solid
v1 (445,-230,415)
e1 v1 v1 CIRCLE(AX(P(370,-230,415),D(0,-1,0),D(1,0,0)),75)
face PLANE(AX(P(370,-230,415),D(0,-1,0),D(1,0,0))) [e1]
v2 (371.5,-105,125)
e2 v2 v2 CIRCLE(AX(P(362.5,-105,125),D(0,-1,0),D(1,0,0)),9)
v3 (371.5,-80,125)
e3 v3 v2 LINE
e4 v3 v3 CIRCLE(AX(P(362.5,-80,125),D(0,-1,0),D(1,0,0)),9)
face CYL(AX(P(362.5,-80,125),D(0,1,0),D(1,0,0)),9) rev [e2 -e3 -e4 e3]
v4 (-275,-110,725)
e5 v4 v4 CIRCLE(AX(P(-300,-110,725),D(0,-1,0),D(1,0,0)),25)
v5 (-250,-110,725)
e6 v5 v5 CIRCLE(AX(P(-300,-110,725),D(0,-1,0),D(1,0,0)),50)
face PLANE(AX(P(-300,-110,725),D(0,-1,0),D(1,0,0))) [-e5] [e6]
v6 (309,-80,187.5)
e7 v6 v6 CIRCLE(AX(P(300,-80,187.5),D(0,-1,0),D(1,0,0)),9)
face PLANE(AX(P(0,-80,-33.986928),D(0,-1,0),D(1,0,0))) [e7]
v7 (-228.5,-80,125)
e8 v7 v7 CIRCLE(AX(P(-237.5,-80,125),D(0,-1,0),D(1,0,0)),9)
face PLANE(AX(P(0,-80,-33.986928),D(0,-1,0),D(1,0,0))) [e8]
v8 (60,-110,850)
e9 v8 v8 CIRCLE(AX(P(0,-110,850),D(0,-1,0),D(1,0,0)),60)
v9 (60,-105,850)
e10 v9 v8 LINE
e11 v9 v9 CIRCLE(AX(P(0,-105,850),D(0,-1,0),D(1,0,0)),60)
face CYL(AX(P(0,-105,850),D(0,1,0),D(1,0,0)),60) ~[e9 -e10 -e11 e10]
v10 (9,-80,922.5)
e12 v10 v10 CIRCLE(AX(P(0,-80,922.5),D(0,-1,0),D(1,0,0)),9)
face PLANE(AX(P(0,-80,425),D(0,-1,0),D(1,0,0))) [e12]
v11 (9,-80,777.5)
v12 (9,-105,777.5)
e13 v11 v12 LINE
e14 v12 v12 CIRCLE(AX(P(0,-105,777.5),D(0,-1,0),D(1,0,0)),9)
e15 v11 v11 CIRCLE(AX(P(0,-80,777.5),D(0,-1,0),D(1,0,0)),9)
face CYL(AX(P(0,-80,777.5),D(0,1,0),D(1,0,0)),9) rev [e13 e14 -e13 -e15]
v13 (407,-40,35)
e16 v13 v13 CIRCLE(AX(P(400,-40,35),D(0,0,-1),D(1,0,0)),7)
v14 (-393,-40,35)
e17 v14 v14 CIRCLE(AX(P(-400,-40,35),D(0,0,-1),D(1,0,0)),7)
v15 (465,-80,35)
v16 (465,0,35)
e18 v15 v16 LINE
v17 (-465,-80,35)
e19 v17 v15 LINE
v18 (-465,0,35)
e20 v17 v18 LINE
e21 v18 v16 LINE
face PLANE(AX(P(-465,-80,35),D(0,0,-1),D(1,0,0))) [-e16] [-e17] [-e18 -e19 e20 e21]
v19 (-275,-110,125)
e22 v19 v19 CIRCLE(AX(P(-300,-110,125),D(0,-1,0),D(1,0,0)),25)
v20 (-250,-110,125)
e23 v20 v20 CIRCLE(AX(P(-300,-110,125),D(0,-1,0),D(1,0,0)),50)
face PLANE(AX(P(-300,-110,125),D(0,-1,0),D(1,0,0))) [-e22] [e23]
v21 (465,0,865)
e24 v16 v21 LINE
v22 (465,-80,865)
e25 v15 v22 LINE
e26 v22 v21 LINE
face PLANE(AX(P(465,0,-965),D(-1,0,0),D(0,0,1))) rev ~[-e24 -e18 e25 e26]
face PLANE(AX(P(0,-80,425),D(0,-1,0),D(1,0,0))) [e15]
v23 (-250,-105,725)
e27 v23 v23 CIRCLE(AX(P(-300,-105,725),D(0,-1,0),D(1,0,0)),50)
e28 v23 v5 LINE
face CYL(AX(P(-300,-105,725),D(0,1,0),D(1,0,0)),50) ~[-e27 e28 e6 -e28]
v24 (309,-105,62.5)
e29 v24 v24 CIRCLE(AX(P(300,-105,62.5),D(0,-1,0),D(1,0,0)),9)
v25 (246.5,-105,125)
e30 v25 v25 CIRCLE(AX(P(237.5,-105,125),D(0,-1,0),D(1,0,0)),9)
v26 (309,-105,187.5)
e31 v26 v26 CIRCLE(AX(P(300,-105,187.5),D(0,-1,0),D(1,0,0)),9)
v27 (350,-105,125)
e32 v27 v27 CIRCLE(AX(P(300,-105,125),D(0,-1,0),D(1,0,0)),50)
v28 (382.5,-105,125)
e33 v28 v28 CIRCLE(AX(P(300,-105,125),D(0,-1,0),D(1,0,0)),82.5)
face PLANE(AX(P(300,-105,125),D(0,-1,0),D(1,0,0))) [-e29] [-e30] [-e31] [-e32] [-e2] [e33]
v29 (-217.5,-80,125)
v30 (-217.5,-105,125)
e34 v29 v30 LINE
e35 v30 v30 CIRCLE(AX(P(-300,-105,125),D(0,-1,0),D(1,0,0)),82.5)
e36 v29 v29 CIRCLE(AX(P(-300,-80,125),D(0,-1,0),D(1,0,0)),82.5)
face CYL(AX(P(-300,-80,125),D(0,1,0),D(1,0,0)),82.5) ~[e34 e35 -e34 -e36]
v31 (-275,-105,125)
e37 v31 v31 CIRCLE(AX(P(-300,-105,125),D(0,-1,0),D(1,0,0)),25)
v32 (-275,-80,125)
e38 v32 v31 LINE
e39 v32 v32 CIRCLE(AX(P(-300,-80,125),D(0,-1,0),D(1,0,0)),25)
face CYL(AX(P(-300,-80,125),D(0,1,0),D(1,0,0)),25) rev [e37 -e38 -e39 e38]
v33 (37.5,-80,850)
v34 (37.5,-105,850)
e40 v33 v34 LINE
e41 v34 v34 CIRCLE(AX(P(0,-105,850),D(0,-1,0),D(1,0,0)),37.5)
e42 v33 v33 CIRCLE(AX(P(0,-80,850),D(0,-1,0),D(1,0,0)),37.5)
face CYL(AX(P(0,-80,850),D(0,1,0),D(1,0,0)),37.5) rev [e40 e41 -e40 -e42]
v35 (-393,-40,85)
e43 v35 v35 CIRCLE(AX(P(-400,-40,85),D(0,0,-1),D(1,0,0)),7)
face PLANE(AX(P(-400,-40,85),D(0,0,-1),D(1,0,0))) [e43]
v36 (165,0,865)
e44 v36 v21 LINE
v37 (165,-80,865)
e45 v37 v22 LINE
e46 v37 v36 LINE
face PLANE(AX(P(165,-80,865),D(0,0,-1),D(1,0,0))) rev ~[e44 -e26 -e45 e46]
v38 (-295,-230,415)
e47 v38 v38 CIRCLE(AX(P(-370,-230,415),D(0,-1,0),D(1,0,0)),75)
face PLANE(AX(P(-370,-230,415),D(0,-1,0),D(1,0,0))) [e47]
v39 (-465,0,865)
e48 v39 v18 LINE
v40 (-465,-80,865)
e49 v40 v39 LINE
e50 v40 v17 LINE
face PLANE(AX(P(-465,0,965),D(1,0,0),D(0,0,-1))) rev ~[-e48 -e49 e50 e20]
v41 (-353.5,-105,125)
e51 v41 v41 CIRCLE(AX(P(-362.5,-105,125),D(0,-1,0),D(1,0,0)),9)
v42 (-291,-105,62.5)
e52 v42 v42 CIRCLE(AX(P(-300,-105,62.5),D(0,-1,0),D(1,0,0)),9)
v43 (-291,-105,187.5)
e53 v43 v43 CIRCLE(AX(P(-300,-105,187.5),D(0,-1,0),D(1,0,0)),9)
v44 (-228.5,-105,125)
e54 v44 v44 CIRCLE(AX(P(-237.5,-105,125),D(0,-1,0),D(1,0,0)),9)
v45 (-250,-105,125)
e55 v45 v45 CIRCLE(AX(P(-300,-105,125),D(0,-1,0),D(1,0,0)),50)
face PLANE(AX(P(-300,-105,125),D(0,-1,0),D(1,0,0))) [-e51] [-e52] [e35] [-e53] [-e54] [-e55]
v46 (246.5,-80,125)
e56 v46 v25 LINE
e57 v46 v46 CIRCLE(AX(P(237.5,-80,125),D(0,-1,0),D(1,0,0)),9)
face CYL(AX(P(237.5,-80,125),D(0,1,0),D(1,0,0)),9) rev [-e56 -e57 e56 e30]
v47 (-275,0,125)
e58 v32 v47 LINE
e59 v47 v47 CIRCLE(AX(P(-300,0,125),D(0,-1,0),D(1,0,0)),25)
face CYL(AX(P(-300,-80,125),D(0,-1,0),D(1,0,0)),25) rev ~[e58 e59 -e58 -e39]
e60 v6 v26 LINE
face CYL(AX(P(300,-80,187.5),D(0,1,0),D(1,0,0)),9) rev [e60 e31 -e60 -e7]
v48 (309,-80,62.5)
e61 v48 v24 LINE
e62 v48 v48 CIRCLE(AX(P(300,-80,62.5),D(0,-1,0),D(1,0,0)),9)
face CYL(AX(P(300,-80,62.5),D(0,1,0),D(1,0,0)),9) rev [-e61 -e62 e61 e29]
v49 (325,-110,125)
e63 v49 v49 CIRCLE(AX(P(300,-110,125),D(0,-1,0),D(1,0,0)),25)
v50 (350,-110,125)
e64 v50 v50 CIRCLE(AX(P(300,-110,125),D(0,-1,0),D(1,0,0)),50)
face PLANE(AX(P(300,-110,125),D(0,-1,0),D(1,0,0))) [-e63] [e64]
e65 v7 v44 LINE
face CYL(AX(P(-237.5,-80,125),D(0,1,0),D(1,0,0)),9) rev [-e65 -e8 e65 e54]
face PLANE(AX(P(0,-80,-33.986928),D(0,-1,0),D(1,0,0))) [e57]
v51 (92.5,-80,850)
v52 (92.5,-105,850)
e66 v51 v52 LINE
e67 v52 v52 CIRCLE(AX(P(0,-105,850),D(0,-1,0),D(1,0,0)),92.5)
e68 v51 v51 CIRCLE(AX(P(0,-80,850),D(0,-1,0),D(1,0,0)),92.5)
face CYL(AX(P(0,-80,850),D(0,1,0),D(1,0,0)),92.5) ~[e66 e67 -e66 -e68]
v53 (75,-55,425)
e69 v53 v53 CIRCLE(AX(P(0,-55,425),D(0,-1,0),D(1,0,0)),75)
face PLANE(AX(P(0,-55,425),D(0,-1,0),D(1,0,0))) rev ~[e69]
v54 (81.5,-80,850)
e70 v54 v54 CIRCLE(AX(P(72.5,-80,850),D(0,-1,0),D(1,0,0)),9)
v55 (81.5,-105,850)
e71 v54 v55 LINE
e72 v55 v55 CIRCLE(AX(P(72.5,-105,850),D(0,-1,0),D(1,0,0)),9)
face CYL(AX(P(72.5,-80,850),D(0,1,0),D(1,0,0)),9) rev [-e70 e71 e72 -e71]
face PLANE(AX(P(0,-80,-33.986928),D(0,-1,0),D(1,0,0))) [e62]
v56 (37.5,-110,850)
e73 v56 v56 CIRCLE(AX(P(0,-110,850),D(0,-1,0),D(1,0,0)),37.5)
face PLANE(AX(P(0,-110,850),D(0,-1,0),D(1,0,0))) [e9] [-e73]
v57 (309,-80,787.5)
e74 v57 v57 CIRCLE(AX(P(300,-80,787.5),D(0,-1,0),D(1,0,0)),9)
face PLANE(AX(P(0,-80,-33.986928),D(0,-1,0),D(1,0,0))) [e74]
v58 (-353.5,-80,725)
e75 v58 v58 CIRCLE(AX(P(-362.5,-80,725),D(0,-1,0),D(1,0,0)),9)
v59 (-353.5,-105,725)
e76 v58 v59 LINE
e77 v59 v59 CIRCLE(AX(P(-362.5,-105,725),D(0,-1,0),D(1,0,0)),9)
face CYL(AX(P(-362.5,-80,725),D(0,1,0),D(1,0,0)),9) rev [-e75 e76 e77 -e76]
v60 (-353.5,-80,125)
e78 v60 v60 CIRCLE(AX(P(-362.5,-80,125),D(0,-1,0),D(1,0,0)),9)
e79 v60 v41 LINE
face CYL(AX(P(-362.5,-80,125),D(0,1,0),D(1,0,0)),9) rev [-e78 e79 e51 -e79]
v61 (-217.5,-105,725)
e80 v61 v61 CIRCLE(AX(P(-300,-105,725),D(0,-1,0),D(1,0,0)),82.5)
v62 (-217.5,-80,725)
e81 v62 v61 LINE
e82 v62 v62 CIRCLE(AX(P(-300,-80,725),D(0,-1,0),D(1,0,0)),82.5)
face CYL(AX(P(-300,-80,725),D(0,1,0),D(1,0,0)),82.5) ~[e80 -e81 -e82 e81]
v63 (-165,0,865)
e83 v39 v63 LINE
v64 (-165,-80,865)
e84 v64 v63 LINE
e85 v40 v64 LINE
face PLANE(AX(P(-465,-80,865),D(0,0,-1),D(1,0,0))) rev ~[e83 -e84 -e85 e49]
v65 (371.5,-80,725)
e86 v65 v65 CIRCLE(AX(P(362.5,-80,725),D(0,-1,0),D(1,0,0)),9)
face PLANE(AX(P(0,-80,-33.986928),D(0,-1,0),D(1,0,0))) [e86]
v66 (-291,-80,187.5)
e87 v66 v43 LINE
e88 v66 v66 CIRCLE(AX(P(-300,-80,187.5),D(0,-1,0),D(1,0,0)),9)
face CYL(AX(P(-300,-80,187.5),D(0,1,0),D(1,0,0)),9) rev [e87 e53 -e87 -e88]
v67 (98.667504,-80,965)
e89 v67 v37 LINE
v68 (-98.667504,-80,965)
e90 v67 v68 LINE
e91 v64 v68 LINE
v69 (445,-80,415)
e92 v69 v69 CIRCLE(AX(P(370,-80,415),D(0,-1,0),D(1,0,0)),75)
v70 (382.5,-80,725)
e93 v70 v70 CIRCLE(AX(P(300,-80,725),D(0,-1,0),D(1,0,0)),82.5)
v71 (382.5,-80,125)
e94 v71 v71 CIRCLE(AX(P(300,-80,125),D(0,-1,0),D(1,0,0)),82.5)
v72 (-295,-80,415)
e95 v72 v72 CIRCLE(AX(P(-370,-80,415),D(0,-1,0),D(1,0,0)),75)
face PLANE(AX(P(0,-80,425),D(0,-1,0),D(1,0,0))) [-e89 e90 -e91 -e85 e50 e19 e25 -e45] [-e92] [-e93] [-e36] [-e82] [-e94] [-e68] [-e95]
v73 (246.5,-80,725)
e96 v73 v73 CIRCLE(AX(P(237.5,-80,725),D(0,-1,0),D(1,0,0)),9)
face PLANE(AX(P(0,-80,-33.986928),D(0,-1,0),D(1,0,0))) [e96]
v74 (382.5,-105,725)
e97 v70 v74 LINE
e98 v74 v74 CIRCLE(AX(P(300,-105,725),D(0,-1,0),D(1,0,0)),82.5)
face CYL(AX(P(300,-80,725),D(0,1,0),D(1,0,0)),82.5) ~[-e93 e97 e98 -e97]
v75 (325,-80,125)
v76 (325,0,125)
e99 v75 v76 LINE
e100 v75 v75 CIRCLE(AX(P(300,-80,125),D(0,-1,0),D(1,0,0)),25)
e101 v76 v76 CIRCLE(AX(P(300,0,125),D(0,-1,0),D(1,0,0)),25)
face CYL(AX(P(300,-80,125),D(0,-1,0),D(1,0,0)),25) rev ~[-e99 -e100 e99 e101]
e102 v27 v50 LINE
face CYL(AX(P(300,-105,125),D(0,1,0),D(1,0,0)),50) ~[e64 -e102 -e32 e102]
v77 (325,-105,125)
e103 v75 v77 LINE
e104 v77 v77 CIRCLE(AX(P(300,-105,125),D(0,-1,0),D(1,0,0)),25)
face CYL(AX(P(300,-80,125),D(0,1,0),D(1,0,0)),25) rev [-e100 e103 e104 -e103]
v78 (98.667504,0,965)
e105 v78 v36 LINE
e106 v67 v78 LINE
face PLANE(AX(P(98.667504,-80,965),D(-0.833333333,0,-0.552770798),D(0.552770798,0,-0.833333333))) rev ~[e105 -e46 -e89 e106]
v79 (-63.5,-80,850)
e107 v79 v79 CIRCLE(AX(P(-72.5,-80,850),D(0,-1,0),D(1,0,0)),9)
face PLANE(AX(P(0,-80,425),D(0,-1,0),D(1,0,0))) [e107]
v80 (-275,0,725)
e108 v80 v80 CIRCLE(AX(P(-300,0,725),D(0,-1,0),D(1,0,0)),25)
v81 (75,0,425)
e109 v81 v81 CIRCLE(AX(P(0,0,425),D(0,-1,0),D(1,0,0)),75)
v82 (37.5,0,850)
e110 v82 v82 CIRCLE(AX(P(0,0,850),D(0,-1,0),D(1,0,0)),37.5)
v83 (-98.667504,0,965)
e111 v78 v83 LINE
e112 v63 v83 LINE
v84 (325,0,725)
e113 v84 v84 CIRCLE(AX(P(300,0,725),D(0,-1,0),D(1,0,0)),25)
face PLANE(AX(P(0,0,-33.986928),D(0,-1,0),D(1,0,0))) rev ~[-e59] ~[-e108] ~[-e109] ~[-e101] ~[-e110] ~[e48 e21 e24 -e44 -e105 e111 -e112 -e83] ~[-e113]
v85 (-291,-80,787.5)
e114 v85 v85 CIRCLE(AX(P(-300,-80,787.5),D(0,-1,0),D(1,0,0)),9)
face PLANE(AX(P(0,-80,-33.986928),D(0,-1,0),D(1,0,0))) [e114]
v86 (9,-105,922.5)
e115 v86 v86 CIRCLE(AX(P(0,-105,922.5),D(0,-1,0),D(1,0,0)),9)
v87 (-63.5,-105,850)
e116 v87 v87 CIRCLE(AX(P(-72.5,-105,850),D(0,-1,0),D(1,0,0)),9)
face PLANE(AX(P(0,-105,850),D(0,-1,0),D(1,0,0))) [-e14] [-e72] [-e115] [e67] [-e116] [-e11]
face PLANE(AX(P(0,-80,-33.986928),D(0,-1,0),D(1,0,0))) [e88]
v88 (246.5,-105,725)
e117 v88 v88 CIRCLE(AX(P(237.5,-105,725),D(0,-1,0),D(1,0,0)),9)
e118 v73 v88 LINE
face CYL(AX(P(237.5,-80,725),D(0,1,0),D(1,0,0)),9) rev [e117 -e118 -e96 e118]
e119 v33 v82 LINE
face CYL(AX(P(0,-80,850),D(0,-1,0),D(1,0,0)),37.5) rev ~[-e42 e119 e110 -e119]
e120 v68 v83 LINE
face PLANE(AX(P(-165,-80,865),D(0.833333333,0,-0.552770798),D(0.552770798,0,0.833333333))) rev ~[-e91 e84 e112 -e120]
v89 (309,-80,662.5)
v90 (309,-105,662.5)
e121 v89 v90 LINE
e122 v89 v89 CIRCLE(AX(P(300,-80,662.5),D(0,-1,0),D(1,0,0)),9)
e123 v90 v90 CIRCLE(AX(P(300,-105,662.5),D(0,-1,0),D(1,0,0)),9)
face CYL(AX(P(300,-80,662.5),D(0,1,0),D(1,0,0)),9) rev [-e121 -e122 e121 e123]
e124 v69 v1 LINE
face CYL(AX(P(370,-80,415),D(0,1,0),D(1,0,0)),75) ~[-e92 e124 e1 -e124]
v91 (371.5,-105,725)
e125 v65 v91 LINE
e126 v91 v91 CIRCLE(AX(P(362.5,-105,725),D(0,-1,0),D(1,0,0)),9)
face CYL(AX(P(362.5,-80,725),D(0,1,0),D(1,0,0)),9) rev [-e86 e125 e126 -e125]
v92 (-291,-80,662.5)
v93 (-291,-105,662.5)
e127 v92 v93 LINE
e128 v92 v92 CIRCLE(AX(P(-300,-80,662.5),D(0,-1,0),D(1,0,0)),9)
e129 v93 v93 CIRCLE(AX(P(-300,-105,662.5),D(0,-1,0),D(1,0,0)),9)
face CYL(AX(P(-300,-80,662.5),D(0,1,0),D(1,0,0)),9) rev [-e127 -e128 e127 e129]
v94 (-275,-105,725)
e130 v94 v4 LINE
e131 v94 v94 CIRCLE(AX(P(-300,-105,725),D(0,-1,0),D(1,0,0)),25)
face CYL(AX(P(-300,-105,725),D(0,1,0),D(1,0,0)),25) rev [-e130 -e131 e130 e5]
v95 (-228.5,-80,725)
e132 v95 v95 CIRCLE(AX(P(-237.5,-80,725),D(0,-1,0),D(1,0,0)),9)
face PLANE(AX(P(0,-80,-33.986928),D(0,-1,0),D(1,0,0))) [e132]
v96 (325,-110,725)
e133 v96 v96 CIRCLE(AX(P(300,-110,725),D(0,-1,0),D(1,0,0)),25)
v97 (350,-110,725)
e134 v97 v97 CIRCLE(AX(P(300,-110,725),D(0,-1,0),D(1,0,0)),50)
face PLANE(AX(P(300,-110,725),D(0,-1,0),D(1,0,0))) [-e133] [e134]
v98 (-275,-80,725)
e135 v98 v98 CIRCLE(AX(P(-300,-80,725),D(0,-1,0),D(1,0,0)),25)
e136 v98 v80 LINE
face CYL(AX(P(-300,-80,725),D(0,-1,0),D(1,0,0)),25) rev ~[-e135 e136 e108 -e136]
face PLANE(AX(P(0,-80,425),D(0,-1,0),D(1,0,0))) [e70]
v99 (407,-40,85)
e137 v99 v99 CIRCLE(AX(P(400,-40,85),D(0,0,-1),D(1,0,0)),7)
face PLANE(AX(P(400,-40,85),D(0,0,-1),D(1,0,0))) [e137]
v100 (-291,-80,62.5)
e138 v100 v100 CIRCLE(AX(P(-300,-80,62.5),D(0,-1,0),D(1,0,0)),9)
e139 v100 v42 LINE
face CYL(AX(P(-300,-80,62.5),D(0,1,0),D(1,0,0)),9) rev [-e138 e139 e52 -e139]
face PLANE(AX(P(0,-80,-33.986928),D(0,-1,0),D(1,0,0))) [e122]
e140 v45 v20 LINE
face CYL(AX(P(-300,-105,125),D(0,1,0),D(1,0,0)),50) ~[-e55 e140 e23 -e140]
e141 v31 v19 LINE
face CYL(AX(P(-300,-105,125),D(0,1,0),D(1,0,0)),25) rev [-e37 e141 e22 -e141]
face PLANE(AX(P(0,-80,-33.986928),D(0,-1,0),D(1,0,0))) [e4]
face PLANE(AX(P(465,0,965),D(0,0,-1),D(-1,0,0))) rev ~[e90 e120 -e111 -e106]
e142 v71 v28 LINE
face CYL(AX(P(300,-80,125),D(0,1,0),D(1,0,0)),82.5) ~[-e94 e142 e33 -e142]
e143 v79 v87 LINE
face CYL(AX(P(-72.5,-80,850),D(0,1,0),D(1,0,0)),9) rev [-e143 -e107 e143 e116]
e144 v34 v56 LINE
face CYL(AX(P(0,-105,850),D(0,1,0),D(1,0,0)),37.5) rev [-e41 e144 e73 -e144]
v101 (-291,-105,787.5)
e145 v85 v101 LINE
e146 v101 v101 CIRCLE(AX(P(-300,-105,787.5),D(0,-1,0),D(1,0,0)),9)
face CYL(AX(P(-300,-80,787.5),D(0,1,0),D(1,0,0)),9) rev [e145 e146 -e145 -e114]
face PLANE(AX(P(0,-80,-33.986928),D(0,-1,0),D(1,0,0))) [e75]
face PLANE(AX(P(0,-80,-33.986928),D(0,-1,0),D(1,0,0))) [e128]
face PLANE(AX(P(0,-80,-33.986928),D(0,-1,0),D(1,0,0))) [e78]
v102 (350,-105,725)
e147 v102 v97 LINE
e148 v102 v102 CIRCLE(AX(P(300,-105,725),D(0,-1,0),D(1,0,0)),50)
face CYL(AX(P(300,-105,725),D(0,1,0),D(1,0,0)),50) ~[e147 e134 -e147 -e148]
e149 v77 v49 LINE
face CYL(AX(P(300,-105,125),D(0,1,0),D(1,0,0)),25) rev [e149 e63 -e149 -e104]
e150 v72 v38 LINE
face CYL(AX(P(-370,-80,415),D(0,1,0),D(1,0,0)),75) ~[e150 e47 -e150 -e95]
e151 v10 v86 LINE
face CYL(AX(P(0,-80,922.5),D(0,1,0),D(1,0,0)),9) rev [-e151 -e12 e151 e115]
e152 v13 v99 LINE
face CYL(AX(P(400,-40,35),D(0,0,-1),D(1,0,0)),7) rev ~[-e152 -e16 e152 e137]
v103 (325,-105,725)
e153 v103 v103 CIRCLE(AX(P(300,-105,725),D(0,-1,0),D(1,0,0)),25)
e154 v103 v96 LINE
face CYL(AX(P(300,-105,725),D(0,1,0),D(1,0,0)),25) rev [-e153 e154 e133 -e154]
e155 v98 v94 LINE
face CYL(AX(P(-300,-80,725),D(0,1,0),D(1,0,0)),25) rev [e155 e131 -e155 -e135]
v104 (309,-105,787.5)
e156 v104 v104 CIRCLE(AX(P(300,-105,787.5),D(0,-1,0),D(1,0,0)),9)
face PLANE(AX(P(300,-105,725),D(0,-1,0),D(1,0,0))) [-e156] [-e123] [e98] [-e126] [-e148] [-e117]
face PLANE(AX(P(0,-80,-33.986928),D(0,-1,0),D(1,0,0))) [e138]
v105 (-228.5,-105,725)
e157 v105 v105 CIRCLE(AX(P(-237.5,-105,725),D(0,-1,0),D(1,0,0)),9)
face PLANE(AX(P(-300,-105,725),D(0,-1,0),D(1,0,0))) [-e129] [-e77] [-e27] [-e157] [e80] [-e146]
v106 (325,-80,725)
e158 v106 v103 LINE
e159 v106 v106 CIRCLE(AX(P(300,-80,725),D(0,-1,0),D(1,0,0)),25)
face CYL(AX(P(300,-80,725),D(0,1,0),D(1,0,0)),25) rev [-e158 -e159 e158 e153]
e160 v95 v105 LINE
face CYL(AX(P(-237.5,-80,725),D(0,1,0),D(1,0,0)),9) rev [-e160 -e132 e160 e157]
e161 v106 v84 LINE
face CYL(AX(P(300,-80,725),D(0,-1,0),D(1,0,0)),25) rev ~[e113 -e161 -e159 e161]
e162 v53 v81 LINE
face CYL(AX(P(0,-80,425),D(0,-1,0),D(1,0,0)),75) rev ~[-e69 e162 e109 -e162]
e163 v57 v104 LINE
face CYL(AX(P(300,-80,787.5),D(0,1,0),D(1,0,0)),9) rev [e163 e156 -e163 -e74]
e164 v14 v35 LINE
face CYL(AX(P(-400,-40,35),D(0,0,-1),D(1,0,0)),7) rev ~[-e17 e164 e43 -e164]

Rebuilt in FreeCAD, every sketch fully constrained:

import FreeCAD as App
import Part
import Sketcher

doc = App.newDocument("Part")
params = doc.addObject("Spreadsheet::Sheet", "Params")
for row, (alias, value) in enumerate([
    ("sketch1_width", "120 mm"),
    ("sketch1_width2", "930 mm"),
    ("sketch1_height", "1930 mm"),
    ("sketch1_height2", "200 mm"),
    ("sketch1_height3", "350 mm"),
    ("pad1_length", "80 mm"),
    ("sketch2_diameter", "50 mm"),
    ("sketch2_diameter2", "150 mm"),
    ("pocket1_length", "100 mm"),
    ("sketch3_diameter", "150 mm"),
    ("pad2_length", "150 mm"),
    ("sketch4_diameter", "165 mm"),
    ("sketch4_diameter2", "18 mm"),
    ("sketch4_diameter3", "50 mm"),
    ("pad3_length", "25 mm"),
    ("sketch5_diameter", "100 mm"),
    ("sketch5_diameter2", "50 mm"),
    ("pad4_length", "5 mm"),
    ("sketch6_diameter", "150 mm"),
    ("pad5_length", "25 mm"),
    ("sketch7_diameter", "75 mm"),
    ("pocket2_length", "100 mm"),
    ("sketch8_diameter", "185 mm"),
    ("sketch8_diameter2", "18 mm"),
    ("sketch8_diameter3", "75 mm"),
    ("pad6_length", "25 mm"),
    ("sketch9_diameter", "120 mm"),
    ("sketch9_diameter2", "75 mm"),
    ("pad7_length", "5 mm"),
    ("sketch10_width", "930 mm"),
    ("sketch10_height", "1000 mm"),
    ("pocket3_length", "100 mm"),
    ("sketch11_diameter", "14 mm"),
    ("pocket4_length", "50 mm"),
    ("sketch12_width", "300 mm"),
    ("sketch12_height", "100 mm"),
    ("sketch12_length", "120 mm"),
    ("pocket5_length", "80 mm"),
], start=1):
    params.set(f"A{row}", alias)
    params.set(f"B{row}", "=" + value)
    params.setAlias(f"B{row}", alias)

body = doc.addObject("PartDesign::Body", "Body")

# Sketch on XZ plane
sketch1 = body.newObject("Sketcher::SketchObject", "Sketch")
sketch1.AttachmentSupport = (doc.getObject("XZ_Plane"), [""])
sketch1.MapMode = "FlatFace"
sketch1.addGeometry([
    Part.LineSegment(App.Vector(345, -965, 0), App.Vector(465, -965, 0)),  # 0
    Part.LineSegment(App.Vector(465, -965, 0), App.Vector(465, 965, 0)),  # 1
    Part.LineSegment(App.Vector(465, 965, 0), App.Vector(-465, 965, 0)),  # 2
    Part.LineSegment(App.Vector(-465, 965, 0), App.Vector(-465, -965, 0)),  # 3
    Part.LineSegment(App.Vector(-465, -965, 0), App.Vector(-345, -965, 0)),  # 4
    Part.LineSegment(App.Vector(-345, -965, 0), App.Vector(-345, -765, 0)),  # 5
    Part.LineSegment(App.Vector(-345, -765, 0), App.Vector(345, -765, 0)),  # 6
    Part.LineSegment(App.Vector(345, -765, 0), App.Vector(345, -965, 0)),  # 7
    Part.LineSegment(App.Vector(345, -645, 0), App.Vector(-345, -645, 0)),  # 8
    Part.LineSegment(App.Vector(-345, -645, 0), App.Vector(-345, -295, 0)),  # 9
    Part.LineSegment(App.Vector(-345, -295, 0), App.Vector(345, -295, 0)),  # 10
    Part.LineSegment(App.Vector(345, -295, 0), App.Vector(345, -645, 0)),  # 11
    Part.LineSegment(App.Vector(345, -175, 0), App.Vector(-345, -175, 0)),  # 12
    Part.LineSegment(App.Vector(-345, -175, 0), App.Vector(-345, 25, 0)),  # 13
    Part.LineSegment(App.Vector(-345, 25, 0), App.Vector(345, 25, 0)),  # 14
    Part.LineSegment(App.Vector(345, 25, 0), App.Vector(345, -175, 0)),  # 15
], False)
sketch1.addConstraint([
    Sketcher.Constraint("Coincident", 0, 2, 1, 1),
    Sketcher.Constraint("Coincident", 1, 2, 2, 1),
    Sketcher.Constraint("Coincident", 2, 2, 3, 1),
    Sketcher.Constraint("Coincident", 3, 2, 4, 1),
    Sketcher.Constraint("Coincident", 4, 2, 5, 1),
    Sketcher.Constraint("Coincident", 5, 2, 6, 1),
    Sketcher.Constraint("Coincident", 6, 2, 7, 1),
    Sketcher.Constraint("Coincident", 7, 2, 0, 1),
    Sketcher.Constraint("Coincident", 8, 2, 9, 1),
    Sketcher.Constraint("Coincident", 9, 2, 10, 1),
    Sketcher.Constraint("Coincident", 10, 2, 11, 1),
    Sketcher.Constraint("Coincident", 11, 2, 8, 1),
    Sketcher.Constraint("Coincident", 12, 2, 13, 1),
    Sketcher.Constraint("Coincident", 13, 2, 14, 1),
    Sketcher.Constraint("Coincident", 14, 2, 15, 1),
    Sketcher.Constraint("Coincident", 15, 2, 12, 1),
    Sketcher.Constraint("Horizontal", 0),
    Sketcher.Constraint("Vertical", 1),
    Sketcher.Constraint("Horizontal", 2),
    Sketcher.Constraint("Vertical", 3),
    Sketcher.Constraint("Horizontal", 4),
    Sketcher.Constraint("Vertical", 5),
    Sketcher.Constraint("Horizontal", 6),
    Sketcher.Constraint("Vertical", 7),
    Sketcher.Constraint("Horizontal", 8),
    Sketcher.Constraint("Vertical", 9),
    Sketcher.Constraint("Horizontal", 10),
    Sketcher.Constraint("Vertical", 11),
    Sketcher.Constraint("Horizontal", 12),
    Sketcher.Constraint("Vertical", 13),
    Sketcher.Constraint("Horizontal", 14),
    Sketcher.Constraint("Vertical", 15),
    Sketcher.Constraint("Symmetric", 0, 2, 2, 2, -1, 1),
    Sketcher.Constraint("Symmetric", 4, 2, 7, 2, -2),
    Sketcher.Constraint("Vertical", 5, 2, 8, 2),
    Sketcher.Constraint("Vertical", 7, 2, 10, 2),
    Sketcher.Constraint("Vertical", 9, 2, 12, 2),
    Sketcher.Constraint("Vertical", 11, 2, 14, 2),
    Sketcher.Constraint("Equal", 7, 13),
    Sketcher.Constraint("DistanceX", 0, 1, 0, 2, 120.0),
    Sketcher.Constraint("DistanceX", 2, 2, 2, 1, 930.0),
    Sketcher.Constraint("DistanceY", 1, 1, 1, 2, 1930.0),
    Sketcher.Constraint("DistanceY", 5, 1, 5, 2, 200.0),
    Sketcher.Constraint("DistanceY", 9, 1, 9, 2, 350.0),
    Sketcher.Constraint("DistanceY", 8, 2, -1, 1, 645.0),
    Sketcher.Constraint("DistanceY", 12, 2, -1, 1, 175.0),
])
sketch1.setExpression("Constraints[39]", "Params.sketch1_width")
sketch1.setExpression("Constraints[40]", "Params.sketch1_width2")
sketch1.setExpression("Constraints[41]", "Params.sketch1_height")
sketch1.setExpression("Constraints[42]", "Params.sketch1_height2")
sketch1.setExpression("Constraints[43]", "Params.sketch1_height3")
pad1 = body.newObject("PartDesign::Pad", "Pad")
pad1.Profile = sketch1
pad1.setExpression("Length", "Params.pad1_length")

# Sketch on XZ plane
sketch2 = body.newObject("Sketcher::SketchObject", "Sketch001")
sketch2.AttachmentSupport = (doc.getObject("XZ_Plane"), [""])
sketch2.MapMode = "FlatFace"
sketch2.AttachmentOffset = App.Placement(App.Vector(0, 0, 80), App.Rotation())
sketch2.addGeometry([
    Part.Circle(App.Vector(-300, 125, 0), App.Vector(0, 0, 1), 25),  # 0
    Part.Circle(App.Vector(0, 425, 0), App.Vector(0, 0, 1), 75),  # 1
    Part.Circle(App.Vector(-300, 725, 0), App.Vector(0, 0, 1), 25),  # 2
    Part.Circle(App.Vector(300, 125, 0), App.Vector(0, 0, 1), 25),  # 3
    Part.Circle(App.Vector(300, 725, 0), App.Vector(0, 0, 1), 25),  # 4
], False)
sketch2.addConstraint([
    Sketcher.Constraint("Equal", 0, 2),
    Sketcher.Constraint("Equal", 2, 3),
    Sketcher.Constraint("Equal", 3, 4),
    Sketcher.Constraint("Symmetric", 0, 3, 3, 3, -2),
    Sketcher.Constraint("Symmetric", 2, 3, 4, 3, -2),
    Sketcher.Constraint("PointOnObject", 1, 3, -2),
    Sketcher.Constraint("Vertical", 0, 3, 2, 3),
    Sketcher.Constraint("Diameter", 0, 50.0),
    Sketcher.Constraint("Diameter", 1, 150.0),
    Sketcher.Constraint("DistanceX", 0, 3, -1, 1, 300.0),
    Sketcher.Constraint("DistanceY", -1, 1, 0, 3, 125.0),
    Sketcher.Constraint("DistanceY", -1, 1, 1, 3, 425.0),
    Sketcher.Constraint("DistanceY", -1, 1, 2, 3, 725.0),
])
sketch2.setExpression("Constraints[7]", "Params.sketch2_diameter")
sketch2.setExpression("Constraints[8]", "Params.sketch2_diameter2")
pocket1 = body.newObject("PartDesign::Pocket", "Pocket")
pocket1.Profile = sketch2
pocket1.setExpression("Length", "Params.pocket1_length")

# Sketch on XZ plane
sketch3 = body.newObject("Sketcher::SketchObject", "Sketch002")
sketch3.AttachmentSupport = (doc.getObject("XZ_Plane"), [""])
sketch3.MapMode = "FlatFace"
sketch3.AttachmentOffset = App.Placement(App.Vector(0, 0, 80), App.Rotation())
sketch3.addGeometry([
    Part.Circle(App.Vector(-370, 415, 0), App.Vector(0, 0, 1), 75),
    Part.Circle(App.Vector(370, 415, 0), App.Vector(0, 0, 1), 75),
], False)
sketch3.addConstraint([
    Sketcher.Constraint("Equal", 0, 1),
    Sketcher.Constraint("Symmetric", 0, 3, 1, 3, -2),
    Sketcher.Constraint("Diameter", 0, 150.0),
    Sketcher.Constraint("DistanceX", 0, 3, -1, 1, 370.0),
    Sketcher.Constraint("DistanceY", -1, 1, 0, 3, 415.0),
])
sketch3.setExpression("Constraints[2]", "Params.sketch3_diameter")
pad2 = body.newObject("PartDesign::Pad", "Pad001")
pad2.Profile = sketch3
pad2.setExpression("Length", "Params.pad2_length")

# Sketch on XZ plane
sketch4 = body.newObject("Sketcher::SketchObject", "Sketch003")
sketch4.AttachmentSupport = (doc.getObject("XZ_Plane"), [""])
sketch4.MapMode = "FlatFace"
sketch4.AttachmentOffset = App.Placement(App.Vector(0, 0, 80), App.Rotation())
sketch4.addGeometry([
    Part.Circle(App.Vector(-300, 725, 0), App.Vector(0, 0, 1), 82),  # 0
    Part.Circle(App.Vector(-300, 662, 0), App.Vector(0, 0, 1), 9),  # 1
    Part.Circle(App.Vector(-362, 725, 0), App.Vector(0, 0, 1), 9),  # 2
    Part.Circle(App.Vector(-300, 725, 0), App.Vector(0, 0, 1), 25),  # 3
    Part.Circle(App.Vector(-238, 725, 0), App.Vector(0, 0, 1), 9),  # 4
    Part.Circle(App.Vector(-300, 788, 0), App.Vector(0, 0, 1), 9),  # 5
    Part.Circle(App.Vector(-300, 125, 0), App.Vector(0, 0, 1), 82),  # 6
    Part.Circle(App.Vector(-300, 62, 0), App.Vector(0, 0, 1), 9),  # 7
    Part.Circle(App.Vector(-362, 125, 0), App.Vector(0, 0, 1), 9),  # 8
    Part.Circle(App.Vector(-300, 125, 0), App.Vector(0, 0, 1), 25),  # 9
    Part.Circle(App.Vector(-238, 125, 0), App.Vector(0, 0, 1), 9),  # 10
    Part.Circle(App.Vector(-300, 188, 0), App.Vector(0, 0, 1), 9),  # 11
    Part.Circle(App.Vector(300, 725, 0), App.Vector(0, 0, 1), 82),  # 12
    Part.Circle(App.Vector(300, 662, 0), App.Vector(0, 0, 1), 9),  # 13
    Part.Circle(App.Vector(238, 725, 0), App.Vector(0, 0, 1), 9),  # 14
    Part.Circle(App.Vector(300, 725, 0), App.Vector(0, 0, 1), 25),  # 15
    Part.Circle(App.Vector(362, 725, 0), App.Vector(0, 0, 1), 9),  # 16
    Part.Circle(App.Vector(300, 788, 0), App.Vector(0, 0, 1), 9),  # 17
    Part.Circle(App.Vector(300, 125, 0), App.Vector(0, 0, 1), 82),  # 18
    Part.Circle(App.Vector(300, 62, 0), App.Vector(0, 0, 1), 9),  # 19
    Part.Circle(App.Vector(238, 125, 0), App.Vector(0, 0, 1), 9),  # 20
    Part.Circle(App.Vector(300, 125, 0), App.Vector(0, 0, 1), 25),  # 21
    Part.Circle(App.Vector(362, 125, 0), App.Vector(0, 0, 1), 9),  # 22
    Part.Circle(App.Vector(300, 188, 0), App.Vector(0, 0, 1), 9),  # 23
], False)
sketch4.addConstraint([
    Sketcher.Constraint("Coincident", 3, 3, 0, 3),
    Sketcher.Constraint("Coincident", 9, 3, 6, 3),
    Sketcher.Constraint("Coincident", 15, 3, 12, 3),
    Sketcher.Constraint("Coincident", 21, 3, 18, 3),
    Sketcher.Constraint("Equal", 1, 2),
    Sketcher.Constraint("Equal", 2, 4),
    Sketcher.Constraint("Equal", 4, 5),
    Sketcher.Constraint("Equal", 0, 6),
    Sketcher.Constraint("Equal", 5, 7),
    Sketcher.Constraint("Equal", 7, 8),
    Sketcher.Constraint("Equal", 3, 9),
    Sketcher.Constraint("Equal", 8, 10),
    Sketcher.Constraint("Equal", 10, 11),
    Sketcher.Constraint("Equal", 6, 12),
    Sketcher.Constraint("Equal", 11, 13),
    Sketcher.Constraint("Equal", 13, 14),
    Sketcher.Constraint("Equal", 9, 15),
    Sketcher.Constraint("Equal", 14, 16),
    Sketcher.Constraint("Equal", 16, 17),
    Sketcher.Constraint("Equal", 12, 18),
    Sketcher.Constraint("Equal", 17, 19),
    Sketcher.Constraint("Equal", 19, 20),
    Sketcher.Constraint("Equal", 15, 21),
    Sketcher.Constraint("Equal", 20, 22),
    Sketcher.Constraint("Equal", 22, 23),
    Sketcher.Constraint("Symmetric", 0, 3, 12, 3, -2),
    Sketcher.Constraint("Symmetric", 1, 3, 13, 3, -2),
    Sketcher.Constraint("Symmetric", 4, 3, 14, 3, -2),
    Sketcher.Constraint("Symmetric", 2, 3, 16, 3, -2),
    Sketcher.Constraint("Symmetric", 5, 3, 17, 3, -2),
    Sketcher.Constraint("Symmetric", 6, 3, 18, 3, -2),
    Sketcher.Constraint("Symmetric", 7, 3, 19, 3, -2),
    Sketcher.Constraint("Symmetric", 10, 3, 20, 3, -2),
    Sketcher.Constraint("Symmetric", 8, 3, 22, 3, -2),
    Sketcher.Constraint("Symmetric", 11, 3, 23, 3, -2),
    Sketcher.Constraint("Horizontal", 0, 3, 2, 3),
    Sketcher.Constraint("Horizontal", 3, 3, 4, 3),
    Sketcher.Constraint("Horizontal", 6, 3, 8, 3),
    Sketcher.Constraint("Horizontal", 9, 3, 10, 3),
    Sketcher.Constraint("Vertical", 0, 3, 1, 3),
    Sketcher.Constraint("Vertical", 3, 3, 5, 3),
    Sketcher.Constraint("Vertical", 5, 3, 6, 3),
    Sketcher.Constraint("Vertical", 6, 3, 7, 3),
    Sketcher.Constraint("Vertical", 2, 3, 8, 3),
    Sketcher.Constraint("Vertical", 4, 3, 10, 3),
    Sketcher.Constraint("Vertical", 9, 3, 11, 3),
    Sketcher.Constraint("Diameter", 0, 165.0),
    Sketcher.Constraint("Diameter", 1, 18.0),
    Sketcher.Constraint("Diameter", 3, 50.0),
    Sketcher.Constraint("DistanceX", 0, 3, -1, 1, 300.0),
    Sketcher.Constraint("DistanceY", -1, 1, 0, 3, 725.0),
    Sketcher.Constraint("DistanceY", -1, 1, 6, 3, 125.0),
    Sketcher.Constraint("DistanceX", 2, 3, 4, 3, 125.0),
    Sketcher.Constraint("DistanceY", 1, 3, 5, 3, 125.0),
    Sketcher.Constraint("DistanceY", 7, 3, 1, 3, 600.0),
    Sketcher.Constraint("DistanceY", 7, 3, 11, 3, 125.0),
    Sketcher.Constraint("DistanceX", 4, 3, 14, 3, 475.0),
    Sketcher.Constraint("DistanceY", -1, 1, 1, 3, 662.5),
])
sketch4.setExpression("Constraints[46]", "Params.sketch4_diameter")
sketch4.setExpression("Constraints[47]", "Params.sketch4_diameter2")
sketch4.setExpression("Constraints[48]", "Params.sketch4_diameter3")
pad3 = body.newObject("PartDesign::Pad", "Pad002")
pad3.Profile = sketch4
pad3.setExpression("Length", "Params.pad3_length")

# Sketch on XZ plane
sketch5 = body.newObject("Sketcher::SketchObject", "Sketch004")
sketch5.AttachmentSupport = (doc.getObject("XZ_Plane"), [""])
sketch5.MapMode = "FlatFace"
sketch5.AttachmentOffset = App.Placement(App.Vector(0, 0, 105), App.Rotation())
sketch5.addGeometry([
    Part.Circle(App.Vector(-300, 725, 0), App.Vector(0, 0, 1), 50),  # 0
    Part.Circle(App.Vector(-300, 725, 0), App.Vector(0, 0, 1), 25),  # 1
    Part.Circle(App.Vector(-300, 125, 0), App.Vector(0, 0, 1), 50),  # 2
    Part.Circle(App.Vector(-300, 125, 0), App.Vector(0, 0, 1), 25),  # 3
    Part.Circle(App.Vector(300, 725, 0), App.Vector(0, 0, 1), 50),  # 4
    Part.Circle(App.Vector(300, 725, 0), App.Vector(0, 0, 1), 25),  # 5
    Part.Circle(App.Vector(300, 125, 0), App.Vector(0, 0, 1), 50),  # 6
    Part.Circle(App.Vector(300, 125, 0), App.Vector(0, 0, 1), 25),  # 7
], False)
sketch5.addConstraint([
    Sketcher.Constraint("Coincident", 1, 3, 0, 3),
    Sketcher.Constraint("Coincident", 3, 3, 2, 3),
    Sketcher.Constraint("Coincident", 5, 3, 4, 3),
    Sketcher.Constraint("Coincident", 7, 3, 6, 3),
    Sketcher.Constraint("Equal", 0, 2),
    Sketcher.Constraint("Equal", 1, 3),
    Sketcher.Constraint("Equal", 2, 4),
    Sketcher.Constraint("Equal", 3, 5),
    Sketcher.Constraint("Equal", 4, 6),
    Sketcher.Constraint("Equal", 5, 7),
    Sketcher.Constraint("Symmetric", 0, 3, 4, 3, -2),
    Sketcher.Constraint("Symmetric", 2, 3, 6, 3, -2),
    Sketcher.Constraint("Vertical", 1, 3, 2, 3),
    Sketcher.Constraint("Diameter", 0, 100.0),
    Sketcher.Constraint("Diameter", 1, 50.0),
    Sketcher.Constraint("DistanceX", 0, 3, -1, 1, 300.0),
    Sketcher.Constraint("DistanceY", -1, 1, 0, 3, 725.0),
    Sketcher.Constraint("DistanceY", -1, 1, 2, 3, 125.0),
])
sketch5.setExpression("Constraints[13]", "Params.sketch5_diameter")
sketch5.setExpression("Constraints[14]", "Params.sketch5_diameter2")
pad4 = body.newObject("PartDesign::Pad", "Pad003")
pad4.Profile = sketch5
pad4.setExpression("Length", "Params.pad4_length")

# Sketch on XZ plane
sketch6 = body.newObject("Sketcher::SketchObject", "Sketch005")
sketch6.AttachmentSupport = (doc.getObject("XZ_Plane"), [""])
sketch6.MapMode = "FlatFace"
sketch6.AttachmentOffset = App.Placement(App.Vector(0, 0, 80), App.Rotation())
sketch6.addGeometry(Part.Circle(App.Vector(0, 425, 0), App.Vector(0, 0, 1), 75), False)
sketch6.addConstraint([
    Sketcher.Constraint("PointOnObject", 0, 3, -2),
    Sketcher.Constraint("Diameter", 0, 150.0),
    Sketcher.Constraint("DistanceY", -1, 1, 0, 3, 425.0),
])
sketch6.setExpression("Constraints[1]", "Params.sketch6_diameter")
pad5 = body.newObject("PartDesign::Pad", "Pad004")
pad5.Profile = sketch6
pad5.setExpression("Length", "Params.pad5_length")
pad5.Reversed = True

# Sketch on XZ plane
sketch7 = body.newObject("Sketcher::SketchObject", "Sketch006")
sketch7.AttachmentSupport = (doc.getObject("XZ_Plane"), [""])
sketch7.MapMode = "FlatFace"
sketch7.AttachmentOffset = App.Placement(App.Vector(0, 0, 80), App.Rotation())
sketch7.addGeometry(Part.Circle(App.Vector(0, 850, 0), App.Vector(0, 0, 1), 38), False)
sketch7.addConstraint([
    Sketcher.Constraint("PointOnObject", 0, 3, -2),
    Sketcher.Constraint("Diameter", 0, 75.0),
    Sketcher.Constraint("DistanceY", -1, 1, 0, 3, 850.0),
])
sketch7.setExpression("Constraints[1]", "Params.sketch7_diameter")
pocket2 = body.newObject("PartDesign::Pocket", "Pocket001")
pocket2.Profile = sketch7
pocket2.setExpression("Length", "Params.pocket2_length")

# Sketch on XZ plane
sketch8 = body.newObject("Sketcher::SketchObject", "Sketch007")
sketch8.AttachmentSupport = (doc.getObject("XZ_Plane"), [""])
sketch8.MapMode = "FlatFace"
sketch8.AttachmentOffset = App.Placement(App.Vector(0, 0, 80), App.Rotation())
sketch8.addGeometry([
    Part.Circle(App.Vector(0, 850, 0), App.Vector(0, 0, 1), 92),  # 0
    Part.Circle(App.Vector(0, 778, 0), App.Vector(0, 0, 1), 9),  # 1
    Part.Circle(App.Vector(-72, 850, 0), App.Vector(0, 0, 1), 9),  # 2
    Part.Circle(App.Vector(0, 850, 0), App.Vector(0, 0, 1), 38),  # 3
    Part.Circle(App.Vector(72, 850, 0), App.Vector(0, 0, 1), 9),  # 4
    Part.Circle(App.Vector(0, 922, 0), App.Vector(0, 0, 1), 9),  # 5
], False)
sketch8.addConstraint([
    Sketcher.Constraint("Coincident", 3, 3, 0, 3),
    Sketcher.Constraint("Equal", 1, 2),
    Sketcher.Constraint("Equal", 2, 4),
    Sketcher.Constraint("Equal", 4, 5),
    Sketcher.Constraint("Symmetric", 2, 3, 4, 3, -2),
    Sketcher.Constraint("PointOnObject", 0, 3, -2),
    Sketcher.Constraint("PointOnObject", 1, 3, -2),
    Sketcher.Constraint("PointOnObject", 5, 3, -2),
    Sketcher.Constraint("Horizontal", 0, 3, 2, 3),
    Sketcher.Constraint("Diameter", 0, 185.0),
    Sketcher.Constraint("Diameter", 1, 18.0),
    Sketcher.Constraint("Diameter", 3, 75.0),
    Sketcher.Constraint("DistanceY", -1, 1, 0, 3, 850.0),
    Sketcher.Constraint("DistanceX", 2, 3, 4, 3, 145.0),
    Sketcher.Constraint("DistanceY", 1, 3, 5, 3, 145.0),
    Sketcher.Constraint("DistanceY", -1, 1, 1, 3, 777.5),
])
sketch8.setExpression("Constraints[9]", "Params.sketch8_diameter")
sketch8.setExpression("Constraints[10]", "Params.sketch8_diameter2")
sketch8.setExpression("Constraints[11]", "Params.sketch8_diameter3")
pad6 = body.newObject("PartDesign::Pad", "Pad005")
pad6.Profile = sketch8
pad6.setExpression("Length", "Params.pad6_length")

# Sketch on XZ plane
sketch9 = body.newObject("Sketcher::SketchObject", "Sketch008")
sketch9.AttachmentSupport = (doc.getObject("XZ_Plane"), [""])
sketch9.MapMode = "FlatFace"
sketch9.AttachmentOffset = App.Placement(App.Vector(0, 0, 105), App.Rotation())
sketch9.addGeometry([
    Part.Circle(App.Vector(0, 850, 0), App.Vector(0, 0, 1), 60),
    Part.Circle(App.Vector(0, 850, 0), App.Vector(0, 0, 1), 38),
], False)
sketch9.addConstraint([
    Sketcher.Constraint("Coincident", 1, 3, 0, 3),
    Sketcher.Constraint("PointOnObject", 0, 3, -2),
    Sketcher.Constraint("Diameter", 0, 120.0),
    Sketcher.Constraint("Diameter", 1, 75.0),
    Sketcher.Constraint("DistanceY", -1, 1, 0, 3, 850.0),
])
sketch9.setExpression("Constraints[2]", "Params.sketch9_diameter")
sketch9.setExpression("Constraints[3]", "Params.sketch9_diameter2")
pad7 = body.newObject("PartDesign::Pad", "Pad006")
pad7.Profile = sketch9
pad7.setExpression("Length", "Params.pad7_length")

# Sketch on XZ plane
sketch10 = body.newObject("Sketcher::SketchObject", "Sketch009")
sketch10.AttachmentSupport = (doc.getObject("XZ_Plane"), [""])
sketch10.MapMode = "FlatFace"
sketch10.AttachmentOffset = App.Placement(App.Vector(0, 0, 80), App.Rotation())
sketch10.addGeometry([
    Part.LineSegment(App.Vector(-465, 35, 0), App.Vector(-465, -965, 0)),
    Part.LineSegment(App.Vector(-465, -965, 0), App.Vector(465, -965, 0)),
    Part.LineSegment(App.Vector(465, -965, 0), App.Vector(465, 35, 0)),
    Part.LineSegment(App.Vector(465, 35, 0), App.Vector(-465, 35, 0)),
], False)
sketch10.addConstraint([
    Sketcher.Constraint("Coincident", 0, 2, 1, 1),
    Sketcher.Constraint("Coincident", 1, 2, 2, 1),
    Sketcher.Constraint("Coincident", 2, 2, 3, 1),
    Sketcher.Constraint("Coincident", 3, 2, 0, 1),
    Sketcher.Constraint("Vertical", 0),
    Sketcher.Constraint("Horizontal", 1),
    Sketcher.Constraint("Vertical", 2),
    Sketcher.Constraint("Horizontal", 3),
    Sketcher.Constraint("DistanceX", 1, 1, 1, 2, 930.0),
    Sketcher.Constraint("DistanceY", 0, 2, 0, 1, 1000.0),
    Sketcher.Constraint("DistanceX", 0, 2, -1, 1, 465.0),
    Sketcher.Constraint("DistanceY", 0, 2, -1, 1, 965.0),
])
sketch10.setExpression("Constraints[8]", "Params.sketch10_width")
sketch10.setExpression("Constraints[9]", "Params.sketch10_height")
pocket3 = body.newObject("PartDesign::Pocket", "Pocket002")
pocket3.Profile = sketch10
pocket3.setExpression("Length", "Params.pocket3_length")

# Sketch on XY plane
sketch11 = body.newObject("Sketcher::SketchObject", "Sketch010")
sketch11.AttachmentSupport = (doc.getObject("XY_Plane"), [""])
sketch11.MapMode = "FlatFace"
sketch11.AttachmentOffset = App.Placement(App.Vector(0, 0, 35), App.Rotation())
sketch11.addGeometry([
    Part.Circle(App.Vector(-400, -40, 0), App.Vector(0, 0, 1), 7),
    Part.Circle(App.Vector(400, -40, 0), App.Vector(0, 0, 1), 7),
], False)
sketch11.addConstraint([
    Sketcher.Constraint("Equal", 0, 1),
    Sketcher.Constraint("Symmetric", 0, 3, 1, 3, -2),
    Sketcher.Constraint("Diameter", 0, 14.0),
    Sketcher.Constraint("DistanceX", 0, 3, -1, 1, 400.0),
    Sketcher.Constraint("DistanceY", 0, 3, -1, 1, 40.0),
])
sketch11.setExpression("Constraints[2]", "Params.sketch11_diameter")
pocket4 = body.newObject("PartDesign::Pocket", "Pocket003")
pocket4.Profile = sketch11
pocket4.setExpression("Length", "Params.pocket4_length")
pocket4.Reversed = True

# Sketch on XZ plane
sketch12 = body.newObject("Sketcher::SketchObject", "Sketch011")
sketch12.AttachmentSupport = (doc.getObject("XZ_Plane"), [""])
sketch12.MapMode = "FlatFace"
sketch12.AttachmentOffset = App.Placement(App.Vector(0, 0, 80), App.Rotation())
sketch12.addGeometry([
    Part.LineSegment(App.Vector(-465, 965, 0), App.Vector(-465, 865, 0)),  # 0
    Part.LineSegment(App.Vector(-465, 865, 0), App.Vector(-165, 865, 0)),  # 1
    Part.LineSegment(App.Vector(-165, 865, 0), App.Vector(-99, 965, 0)),  # 2
    Part.LineSegment(App.Vector(-99, 965, 0), App.Vector(-465, 965, 0)),  # 3
    Part.LineSegment(App.Vector(165, 865, 0), App.Vector(465, 865, 0)),  # 4
    Part.LineSegment(App.Vector(465, 865, 0), App.Vector(465, 965, 0)),  # 5
    Part.LineSegment(App.Vector(465, 965, 0), App.Vector(99, 965, 0)),  # 6
    Part.LineSegment(App.Vector(99, 965, 0), App.Vector(165, 865, 0)),  # 7
], False)
sketch12.addConstraint([
    Sketcher.Constraint("Coincident", 0, 2, 1, 1),
    Sketcher.Constraint("Coincident", 1, 2, 2, 1),
    Sketcher.Constraint("Coincident", 2, 2, 3, 1),
    Sketcher.Constraint("Coincident", 3, 2, 0, 1),
    Sketcher.Constraint("Coincident", 4, 2, 5, 1),
    Sketcher.Constraint("Coincident", 5, 2, 6, 1),
    Sketcher.Constraint("Coincident", 6, 2, 7, 1),
    Sketcher.Constraint("Coincident", 7, 2, 4, 1),
    Sketcher.Constraint("Vertical", 0),
    Sketcher.Constraint("Horizontal", 1),
    Sketcher.Constraint("Horizontal", 3),
    Sketcher.Constraint("Horizontal", 4),
    Sketcher.Constraint("Vertical", 5),
    Sketcher.Constraint("Horizontal", 6),
    Sketcher.Constraint("Symmetric", 0, 2, 4, 2, -2),
    Sketcher.Constraint("Symmetric", 2, 2, 6, 2, -2),
    Sketcher.Constraint("Equal", 1, 4),
    Sketcher.Constraint("DistanceX", 1, 1, 1, 2, 300.0),
    Sketcher.Constraint("DistanceY", 0, 2, 0, 1, 100.0),
    Sketcher.Constraint("Distance", 2, 120.0),
    Sketcher.Constraint("DistanceX", 0, 2, -1, 1, 465.0),
    Sketcher.Constraint("DistanceY", -1, 1, 0, 2, 865.0),
])
sketch12.setExpression("Constraints[17]", "Params.sketch12_width")
sketch12.setExpression("Constraints[18]", "Params.sketch12_height")
sketch12.setExpression("Constraints[19]", "Params.sketch12_length")
pocket5 = body.newObject("PartDesign::Pocket", "Pocket004")
pocket5.Profile = sketch12
pocket5.setExpression("Length", "Params.pocket5_length")

doc.recompute()
